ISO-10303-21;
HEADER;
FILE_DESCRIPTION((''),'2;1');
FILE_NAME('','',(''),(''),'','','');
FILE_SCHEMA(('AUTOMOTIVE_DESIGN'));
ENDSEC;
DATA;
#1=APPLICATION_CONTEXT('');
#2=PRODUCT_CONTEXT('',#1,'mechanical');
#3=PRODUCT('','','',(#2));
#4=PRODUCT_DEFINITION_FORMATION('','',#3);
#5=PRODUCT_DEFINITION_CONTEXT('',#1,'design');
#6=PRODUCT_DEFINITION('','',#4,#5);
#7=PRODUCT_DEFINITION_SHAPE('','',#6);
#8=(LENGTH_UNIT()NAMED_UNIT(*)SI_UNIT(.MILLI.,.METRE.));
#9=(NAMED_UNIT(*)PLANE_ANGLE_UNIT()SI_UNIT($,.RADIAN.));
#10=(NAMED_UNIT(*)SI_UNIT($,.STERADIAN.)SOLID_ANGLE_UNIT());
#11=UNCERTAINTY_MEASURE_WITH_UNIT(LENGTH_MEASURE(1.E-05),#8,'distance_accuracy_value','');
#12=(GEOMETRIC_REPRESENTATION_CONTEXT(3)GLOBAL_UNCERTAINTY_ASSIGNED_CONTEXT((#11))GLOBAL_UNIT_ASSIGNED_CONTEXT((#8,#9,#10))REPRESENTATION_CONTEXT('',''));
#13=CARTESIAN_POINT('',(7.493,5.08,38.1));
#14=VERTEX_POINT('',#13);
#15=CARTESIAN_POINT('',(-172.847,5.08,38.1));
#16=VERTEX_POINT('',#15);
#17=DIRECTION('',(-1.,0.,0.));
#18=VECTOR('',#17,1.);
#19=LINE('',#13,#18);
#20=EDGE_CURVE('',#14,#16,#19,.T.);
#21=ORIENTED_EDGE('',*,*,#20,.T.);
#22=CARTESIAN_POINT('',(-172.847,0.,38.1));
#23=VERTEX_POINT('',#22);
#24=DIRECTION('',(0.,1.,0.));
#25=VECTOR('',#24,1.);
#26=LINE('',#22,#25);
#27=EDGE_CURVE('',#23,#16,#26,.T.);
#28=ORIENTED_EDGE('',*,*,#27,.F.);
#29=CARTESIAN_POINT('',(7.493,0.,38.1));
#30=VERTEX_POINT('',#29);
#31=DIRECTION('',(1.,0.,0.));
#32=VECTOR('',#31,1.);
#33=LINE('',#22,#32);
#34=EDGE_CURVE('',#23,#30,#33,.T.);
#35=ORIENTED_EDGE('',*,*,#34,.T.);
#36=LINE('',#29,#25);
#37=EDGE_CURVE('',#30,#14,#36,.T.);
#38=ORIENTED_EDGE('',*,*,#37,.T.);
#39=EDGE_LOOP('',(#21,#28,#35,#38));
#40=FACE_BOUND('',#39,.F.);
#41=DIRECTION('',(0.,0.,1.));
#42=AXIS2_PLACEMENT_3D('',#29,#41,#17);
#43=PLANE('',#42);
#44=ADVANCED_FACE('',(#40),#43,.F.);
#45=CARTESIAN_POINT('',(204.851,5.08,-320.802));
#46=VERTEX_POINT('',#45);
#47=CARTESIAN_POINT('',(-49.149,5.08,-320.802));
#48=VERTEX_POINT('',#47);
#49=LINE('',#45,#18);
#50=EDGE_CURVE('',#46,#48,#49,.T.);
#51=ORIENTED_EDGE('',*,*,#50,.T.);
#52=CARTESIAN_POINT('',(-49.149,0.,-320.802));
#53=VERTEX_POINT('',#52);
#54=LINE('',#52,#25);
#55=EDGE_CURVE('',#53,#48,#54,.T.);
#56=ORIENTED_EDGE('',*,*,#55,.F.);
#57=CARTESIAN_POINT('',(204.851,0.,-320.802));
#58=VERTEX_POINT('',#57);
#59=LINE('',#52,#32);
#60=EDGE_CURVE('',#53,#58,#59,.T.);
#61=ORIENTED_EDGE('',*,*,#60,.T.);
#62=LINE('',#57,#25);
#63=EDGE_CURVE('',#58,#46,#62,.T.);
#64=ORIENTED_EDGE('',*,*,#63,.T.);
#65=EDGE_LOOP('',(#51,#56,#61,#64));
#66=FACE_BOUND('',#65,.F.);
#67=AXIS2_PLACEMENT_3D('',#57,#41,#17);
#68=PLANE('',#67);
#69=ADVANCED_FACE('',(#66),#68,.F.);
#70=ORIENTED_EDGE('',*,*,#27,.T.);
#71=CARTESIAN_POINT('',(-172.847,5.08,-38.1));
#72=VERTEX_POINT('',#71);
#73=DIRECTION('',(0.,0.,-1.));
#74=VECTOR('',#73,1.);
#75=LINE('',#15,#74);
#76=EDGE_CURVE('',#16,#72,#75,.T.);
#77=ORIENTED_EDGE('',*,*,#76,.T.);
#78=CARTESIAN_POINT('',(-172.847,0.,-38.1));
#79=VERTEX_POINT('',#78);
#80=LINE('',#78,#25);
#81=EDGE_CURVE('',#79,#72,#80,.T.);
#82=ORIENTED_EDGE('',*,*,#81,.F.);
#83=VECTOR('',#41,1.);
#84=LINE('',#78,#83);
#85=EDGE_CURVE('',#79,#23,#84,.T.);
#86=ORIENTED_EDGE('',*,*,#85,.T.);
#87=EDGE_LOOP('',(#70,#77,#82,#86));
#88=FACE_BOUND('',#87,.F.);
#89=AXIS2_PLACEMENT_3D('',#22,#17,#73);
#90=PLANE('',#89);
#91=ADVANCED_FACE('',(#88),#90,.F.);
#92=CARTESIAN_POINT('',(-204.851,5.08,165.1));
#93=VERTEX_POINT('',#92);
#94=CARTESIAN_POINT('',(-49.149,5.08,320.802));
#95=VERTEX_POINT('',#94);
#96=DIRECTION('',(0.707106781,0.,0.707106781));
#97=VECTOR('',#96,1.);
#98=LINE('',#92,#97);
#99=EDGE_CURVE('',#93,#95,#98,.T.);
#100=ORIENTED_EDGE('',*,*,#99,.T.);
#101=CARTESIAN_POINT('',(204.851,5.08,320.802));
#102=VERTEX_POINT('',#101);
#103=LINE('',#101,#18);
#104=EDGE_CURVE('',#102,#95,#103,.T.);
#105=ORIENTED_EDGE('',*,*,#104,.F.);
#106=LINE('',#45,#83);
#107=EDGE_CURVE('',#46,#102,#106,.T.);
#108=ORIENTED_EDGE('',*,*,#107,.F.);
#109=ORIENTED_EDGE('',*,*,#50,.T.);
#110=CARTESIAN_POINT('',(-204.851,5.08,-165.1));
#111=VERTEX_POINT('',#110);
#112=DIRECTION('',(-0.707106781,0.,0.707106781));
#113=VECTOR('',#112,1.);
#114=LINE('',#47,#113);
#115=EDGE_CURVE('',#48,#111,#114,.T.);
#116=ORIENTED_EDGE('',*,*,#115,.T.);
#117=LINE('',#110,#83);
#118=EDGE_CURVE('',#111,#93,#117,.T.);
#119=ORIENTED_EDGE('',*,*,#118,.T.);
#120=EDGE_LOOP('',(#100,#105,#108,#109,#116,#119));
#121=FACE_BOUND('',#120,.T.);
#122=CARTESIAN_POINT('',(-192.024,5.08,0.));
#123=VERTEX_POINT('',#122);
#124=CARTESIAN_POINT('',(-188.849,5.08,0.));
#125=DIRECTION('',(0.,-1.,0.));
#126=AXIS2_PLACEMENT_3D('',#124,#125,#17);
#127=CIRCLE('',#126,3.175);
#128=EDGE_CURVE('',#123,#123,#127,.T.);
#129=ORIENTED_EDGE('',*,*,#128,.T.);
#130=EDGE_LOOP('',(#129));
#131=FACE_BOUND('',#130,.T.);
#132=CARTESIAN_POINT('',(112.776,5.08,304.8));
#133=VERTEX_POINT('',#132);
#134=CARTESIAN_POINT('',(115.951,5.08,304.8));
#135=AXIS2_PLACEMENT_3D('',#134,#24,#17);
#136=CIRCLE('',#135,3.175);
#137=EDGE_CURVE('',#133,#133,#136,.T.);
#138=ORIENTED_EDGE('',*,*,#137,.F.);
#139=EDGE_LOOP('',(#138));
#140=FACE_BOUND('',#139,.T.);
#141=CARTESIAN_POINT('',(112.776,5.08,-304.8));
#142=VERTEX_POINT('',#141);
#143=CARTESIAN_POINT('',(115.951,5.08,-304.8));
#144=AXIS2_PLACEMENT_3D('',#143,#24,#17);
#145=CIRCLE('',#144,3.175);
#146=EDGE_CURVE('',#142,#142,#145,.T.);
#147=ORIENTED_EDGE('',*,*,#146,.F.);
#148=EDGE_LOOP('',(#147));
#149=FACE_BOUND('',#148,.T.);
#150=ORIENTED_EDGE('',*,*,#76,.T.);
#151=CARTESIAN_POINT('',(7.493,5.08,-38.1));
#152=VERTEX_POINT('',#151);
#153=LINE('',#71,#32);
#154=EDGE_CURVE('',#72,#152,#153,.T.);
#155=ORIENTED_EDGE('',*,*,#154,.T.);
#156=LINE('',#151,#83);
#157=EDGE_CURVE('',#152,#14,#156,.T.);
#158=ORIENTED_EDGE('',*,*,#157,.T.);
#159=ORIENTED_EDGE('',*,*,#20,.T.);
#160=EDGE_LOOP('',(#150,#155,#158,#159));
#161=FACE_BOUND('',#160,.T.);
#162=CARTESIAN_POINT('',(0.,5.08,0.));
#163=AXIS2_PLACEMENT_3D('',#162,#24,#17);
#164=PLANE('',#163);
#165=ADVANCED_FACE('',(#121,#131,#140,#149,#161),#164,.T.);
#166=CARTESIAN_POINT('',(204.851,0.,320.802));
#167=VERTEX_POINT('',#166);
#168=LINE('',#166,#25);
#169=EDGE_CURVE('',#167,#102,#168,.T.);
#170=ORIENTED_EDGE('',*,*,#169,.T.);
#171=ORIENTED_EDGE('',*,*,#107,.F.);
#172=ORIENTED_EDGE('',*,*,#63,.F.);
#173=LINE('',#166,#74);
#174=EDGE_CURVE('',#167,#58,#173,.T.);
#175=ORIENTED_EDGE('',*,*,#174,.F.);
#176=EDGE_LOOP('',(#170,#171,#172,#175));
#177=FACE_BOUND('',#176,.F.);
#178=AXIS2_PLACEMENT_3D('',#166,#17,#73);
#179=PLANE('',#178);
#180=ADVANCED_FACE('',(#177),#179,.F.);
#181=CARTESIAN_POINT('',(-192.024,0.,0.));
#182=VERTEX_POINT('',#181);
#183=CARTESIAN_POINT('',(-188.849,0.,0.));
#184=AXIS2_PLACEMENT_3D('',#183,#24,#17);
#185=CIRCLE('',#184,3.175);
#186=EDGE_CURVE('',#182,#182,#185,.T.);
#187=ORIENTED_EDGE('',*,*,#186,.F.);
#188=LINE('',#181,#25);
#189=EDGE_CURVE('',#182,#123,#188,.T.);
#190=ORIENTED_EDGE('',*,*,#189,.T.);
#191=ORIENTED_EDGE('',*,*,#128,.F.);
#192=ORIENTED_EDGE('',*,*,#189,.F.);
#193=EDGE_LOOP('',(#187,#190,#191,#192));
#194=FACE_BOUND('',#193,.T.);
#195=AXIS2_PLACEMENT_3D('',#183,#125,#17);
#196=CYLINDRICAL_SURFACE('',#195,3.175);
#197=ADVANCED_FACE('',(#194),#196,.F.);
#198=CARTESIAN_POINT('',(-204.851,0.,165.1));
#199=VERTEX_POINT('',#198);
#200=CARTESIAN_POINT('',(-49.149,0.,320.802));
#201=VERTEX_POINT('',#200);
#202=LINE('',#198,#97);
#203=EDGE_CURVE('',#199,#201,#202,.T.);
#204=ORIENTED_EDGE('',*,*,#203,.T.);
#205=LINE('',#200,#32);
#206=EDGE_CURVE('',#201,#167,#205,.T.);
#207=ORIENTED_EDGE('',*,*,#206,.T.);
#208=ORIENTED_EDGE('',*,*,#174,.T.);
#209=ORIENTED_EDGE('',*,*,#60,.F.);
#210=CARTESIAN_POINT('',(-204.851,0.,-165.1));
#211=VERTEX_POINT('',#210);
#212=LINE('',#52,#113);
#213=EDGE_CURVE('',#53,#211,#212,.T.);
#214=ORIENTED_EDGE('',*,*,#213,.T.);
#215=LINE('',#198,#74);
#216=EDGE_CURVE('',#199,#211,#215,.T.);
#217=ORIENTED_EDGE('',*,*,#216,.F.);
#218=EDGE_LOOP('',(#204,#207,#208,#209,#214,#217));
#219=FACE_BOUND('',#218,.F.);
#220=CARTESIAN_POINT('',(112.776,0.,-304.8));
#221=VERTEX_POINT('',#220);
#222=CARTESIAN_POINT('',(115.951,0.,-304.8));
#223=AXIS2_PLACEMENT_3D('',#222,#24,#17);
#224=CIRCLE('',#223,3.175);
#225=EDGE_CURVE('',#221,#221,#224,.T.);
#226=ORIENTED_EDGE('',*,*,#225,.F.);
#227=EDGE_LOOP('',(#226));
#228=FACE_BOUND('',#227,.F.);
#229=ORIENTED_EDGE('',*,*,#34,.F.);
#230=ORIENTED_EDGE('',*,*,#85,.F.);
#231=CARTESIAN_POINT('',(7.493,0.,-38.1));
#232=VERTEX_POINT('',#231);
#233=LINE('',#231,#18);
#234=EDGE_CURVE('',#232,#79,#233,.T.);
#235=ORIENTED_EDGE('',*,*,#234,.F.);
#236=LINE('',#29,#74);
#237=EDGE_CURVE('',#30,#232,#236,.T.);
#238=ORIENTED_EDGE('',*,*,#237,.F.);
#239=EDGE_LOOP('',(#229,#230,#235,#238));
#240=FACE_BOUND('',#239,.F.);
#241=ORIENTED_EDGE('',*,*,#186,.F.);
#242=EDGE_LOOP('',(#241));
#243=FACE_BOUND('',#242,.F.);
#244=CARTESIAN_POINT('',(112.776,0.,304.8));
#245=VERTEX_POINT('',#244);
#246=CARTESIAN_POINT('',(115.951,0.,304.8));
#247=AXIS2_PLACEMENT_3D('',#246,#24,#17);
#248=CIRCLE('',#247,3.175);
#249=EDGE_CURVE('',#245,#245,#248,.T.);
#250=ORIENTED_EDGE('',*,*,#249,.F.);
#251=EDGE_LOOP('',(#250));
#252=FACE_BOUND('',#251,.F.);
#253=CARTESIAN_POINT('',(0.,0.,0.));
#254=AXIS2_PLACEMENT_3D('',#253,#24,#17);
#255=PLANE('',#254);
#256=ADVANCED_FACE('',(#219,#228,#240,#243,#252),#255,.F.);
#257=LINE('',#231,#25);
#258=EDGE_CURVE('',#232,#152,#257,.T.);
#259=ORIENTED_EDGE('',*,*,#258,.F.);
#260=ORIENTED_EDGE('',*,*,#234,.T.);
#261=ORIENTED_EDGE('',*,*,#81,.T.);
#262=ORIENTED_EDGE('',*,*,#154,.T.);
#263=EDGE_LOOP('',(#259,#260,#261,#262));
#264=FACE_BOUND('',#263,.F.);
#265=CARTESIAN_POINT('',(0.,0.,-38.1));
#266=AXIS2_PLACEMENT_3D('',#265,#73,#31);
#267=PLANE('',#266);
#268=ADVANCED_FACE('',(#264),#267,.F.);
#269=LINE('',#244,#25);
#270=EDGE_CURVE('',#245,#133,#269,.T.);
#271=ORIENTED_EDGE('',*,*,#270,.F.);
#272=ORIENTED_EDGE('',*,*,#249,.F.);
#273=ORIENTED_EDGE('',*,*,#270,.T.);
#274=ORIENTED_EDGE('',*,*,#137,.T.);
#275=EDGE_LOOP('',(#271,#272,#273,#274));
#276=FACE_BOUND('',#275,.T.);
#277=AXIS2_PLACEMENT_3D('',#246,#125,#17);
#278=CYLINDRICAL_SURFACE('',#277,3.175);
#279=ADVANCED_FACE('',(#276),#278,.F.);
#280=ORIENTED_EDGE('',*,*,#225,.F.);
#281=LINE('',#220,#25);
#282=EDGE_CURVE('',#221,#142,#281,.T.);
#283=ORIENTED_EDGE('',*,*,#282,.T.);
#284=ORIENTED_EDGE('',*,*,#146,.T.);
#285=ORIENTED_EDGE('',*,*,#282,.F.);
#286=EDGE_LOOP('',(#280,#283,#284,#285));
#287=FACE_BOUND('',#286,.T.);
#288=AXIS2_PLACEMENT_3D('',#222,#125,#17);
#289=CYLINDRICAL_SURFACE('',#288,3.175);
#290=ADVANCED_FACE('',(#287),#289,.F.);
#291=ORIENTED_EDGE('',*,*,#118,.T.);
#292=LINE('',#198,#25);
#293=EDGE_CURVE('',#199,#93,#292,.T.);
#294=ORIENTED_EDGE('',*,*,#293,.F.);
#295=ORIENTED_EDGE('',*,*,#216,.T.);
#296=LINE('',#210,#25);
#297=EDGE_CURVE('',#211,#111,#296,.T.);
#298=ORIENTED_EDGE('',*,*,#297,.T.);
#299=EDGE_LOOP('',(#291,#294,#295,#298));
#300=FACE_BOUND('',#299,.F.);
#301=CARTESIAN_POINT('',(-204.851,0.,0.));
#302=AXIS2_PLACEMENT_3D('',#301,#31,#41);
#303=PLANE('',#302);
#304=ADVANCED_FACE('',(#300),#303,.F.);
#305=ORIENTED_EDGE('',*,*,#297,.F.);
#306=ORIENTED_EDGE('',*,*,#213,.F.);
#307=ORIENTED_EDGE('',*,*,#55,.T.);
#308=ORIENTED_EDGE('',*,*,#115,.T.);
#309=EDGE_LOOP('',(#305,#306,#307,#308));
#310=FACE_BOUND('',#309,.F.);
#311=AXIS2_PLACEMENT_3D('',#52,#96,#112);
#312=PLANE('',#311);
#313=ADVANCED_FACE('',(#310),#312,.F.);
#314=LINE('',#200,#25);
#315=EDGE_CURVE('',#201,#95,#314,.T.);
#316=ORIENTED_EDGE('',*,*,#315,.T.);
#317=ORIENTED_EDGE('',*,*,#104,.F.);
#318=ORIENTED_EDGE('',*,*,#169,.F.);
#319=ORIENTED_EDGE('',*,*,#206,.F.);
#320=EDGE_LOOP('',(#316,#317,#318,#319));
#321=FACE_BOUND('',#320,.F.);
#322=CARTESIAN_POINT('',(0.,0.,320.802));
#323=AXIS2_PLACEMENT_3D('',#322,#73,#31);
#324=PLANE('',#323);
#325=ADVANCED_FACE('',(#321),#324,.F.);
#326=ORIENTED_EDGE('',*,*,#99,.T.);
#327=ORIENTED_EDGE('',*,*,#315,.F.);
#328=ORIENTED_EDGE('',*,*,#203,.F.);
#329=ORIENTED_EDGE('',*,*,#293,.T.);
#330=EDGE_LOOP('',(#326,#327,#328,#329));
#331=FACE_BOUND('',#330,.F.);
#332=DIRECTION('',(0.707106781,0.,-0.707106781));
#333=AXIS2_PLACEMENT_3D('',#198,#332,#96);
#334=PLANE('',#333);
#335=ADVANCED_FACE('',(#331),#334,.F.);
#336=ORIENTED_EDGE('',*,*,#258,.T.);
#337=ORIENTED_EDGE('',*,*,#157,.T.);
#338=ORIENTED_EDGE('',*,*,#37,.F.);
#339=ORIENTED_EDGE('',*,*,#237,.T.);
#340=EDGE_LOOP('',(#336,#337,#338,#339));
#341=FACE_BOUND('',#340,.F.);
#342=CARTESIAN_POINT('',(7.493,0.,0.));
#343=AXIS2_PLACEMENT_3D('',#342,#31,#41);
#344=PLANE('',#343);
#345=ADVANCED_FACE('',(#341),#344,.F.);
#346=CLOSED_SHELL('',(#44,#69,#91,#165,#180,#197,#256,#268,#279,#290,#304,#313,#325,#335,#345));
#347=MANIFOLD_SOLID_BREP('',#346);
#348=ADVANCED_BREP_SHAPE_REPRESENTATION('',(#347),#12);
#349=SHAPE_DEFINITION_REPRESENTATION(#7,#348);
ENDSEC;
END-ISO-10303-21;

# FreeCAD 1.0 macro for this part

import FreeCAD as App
import Part
import Sketcher
Q = App.Units.Quantity

doc = App.newDocument("Part")
body = doc.addObject("PartDesign::Body", "Body")

# Sketch on XZ plane
sketch1 = body.newObject("Sketcher::SketchObject", "Sketch")
sketch1.AttachmentSupport = (doc.getObject("XZ_Plane"), [""])
sketch1.MapMode = "FlatFace"
sketch1.addGeometry([
    Part.LineSegment(App.Vector(204.9, 320.8, 0), App.Vector(204.9, -320.8, 0)),  # 0
    Part.LineSegment(App.Vector(204.9, -320.8, 0), App.Vector(-49.1, -320.8, 0)),  # 1
    Part.LineSegment(App.Vector(-49.1, -320.8, 0), App.Vector(-204.9, -165.1, 0)),  # 2
    Part.LineSegment(App.Vector(-204.9, -165.1, 0), App.Vector(-204.9, 165.1, 0)),  # 3
    Part.LineSegment(App.Vector(-204.9, 165.1, 0), App.Vector(-49.1, 320.8, 0)),  # 4
    Part.LineSegment(App.Vector(-49.1, 320.8, 0), App.Vector(204.9, 320.8, 0)),  # 5
    Part.LineSegment(App.Vector(7.5, 38.1, 0), App.Vector(-172.8, 38.1, 0)),  # 6
    Part.LineSegment(App.Vector(-172.8, 38.1, 0), App.Vector(-172.8, -38.1, 0)),  # 7
    Part.LineSegment(App.Vector(-172.8, -38.1, 0), App.Vector(7.5, -38.1, 0)),  # 8
    Part.LineSegment(App.Vector(7.5, -38.1, 0), App.Vector(7.5, 38.1, 0)),  # 9
    Part.Circle(App.Vector(116, 304.8, 0), App.Vector(0, 0, 1), 3.2),  # 10
    Part.Circle(App.Vector(-188.8, 0, 0), App.Vector(0, 0, 1), 3.2),  # 11
    Part.Circle(App.Vector(116, -304.8, 0), App.Vector(0, 0, 1), 3.2),  # 12
], False)
sketch1.addConstraint([
    Sketcher.Constraint("Coincident", 0, 2, 1, 1),
    Sketcher.Constraint("Coincident", 1, 2, 2, 1),
    Sketcher.Constraint("Coincident", 2, 2, 3, 1),
    Sketcher.Constraint("Coincident", 3, 2, 4, 1),
    Sketcher.Constraint("Coincident", 4, 2, 5, 1),
    Sketcher.Constraint("Coincident", 5, 2, 0, 1),
    Sketcher.Constraint("Coincident", 6, 2, 7, 1),
    Sketcher.Constraint("Coincident", 7, 2, 8, 1),
    Sketcher.Constraint("Coincident", 8, 2, 9, 1),
    Sketcher.Constraint("Coincident", 9, 2, 6, 1),
    Sketcher.Constraint("Vertical", 0),
    Sketcher.Constraint("Horizontal", 1),
    Sketcher.Constraint("Vertical", 3),
    Sketcher.Constraint("Horizontal", 5),
    Sketcher.Constraint("Horizontal", 6),
    Sketcher.Constraint("Vertical", 7),
    Sketcher.Constraint("Horizontal", 8),
    Sketcher.Constraint("Vertical", 9),
    Sketcher.Constraint("Equal", 10, 11),
    Sketcher.Constraint("Equal", 11, 12),
    Sketcher.Constraint("Symmetric", 10, 3, 12, 3, -1),
    Sketcher.Constraint("Symmetric", 1, 2, 4, 2, -1),
    Sketcher.Constraint("PointOnObject", 11, 3, -1),
    Sketcher.Constraint("Perpendicular", 2, 4),
    Sketcher.Constraint("Equal", 2, 4),
    Sketcher.Constraint("Diameter", 10, Q("0.25 in")),
    Sketcher.Constraint("DistanceX", 1, 2, 1, 1, Q("10 in")),
    Sketcher.Constraint("DistanceY", 3, 1, 3, 2, Q("13 in")),
    Sketcher.Constraint("DistanceY", 7, 2, 7, 1, Q("3 in")),
    Sketcher.Constraint("DistanceX", 6, 2, 6, 1, Q("7.1 in")),
    Sketcher.Constraint("DistanceY", 0, 2, 0, 1, Q("25.26 in")),
    Sketcher.Constraint("DistanceX", 1, 2, 12, 3, Q("6.5 in")),
    Sketcher.Constraint("DistanceY", 0, 2, 12, 3, Q("0.63 in")),
    Sketcher.Constraint("DistanceX", 2, 2, 11, 3, Q("0.63 in")),
    Sketcher.Constraint("DistanceX", 11, 3, 6, 2, Q("0.63 in")),
    Sketcher.Constraint("DistanceY", 6, 2, 3, 2, Q("5 in")),
    Sketcher.Constraint("DistanceX", -1, 1, 10, 3, Q("4.565 in")),
])
pad1 = body.newObject("PartDesign::Pad", "Pad")
pad1.Profile = sketch1
pad1.Length = Q("0.2 in")
pad1.Reversed = True

doc.recompute()
